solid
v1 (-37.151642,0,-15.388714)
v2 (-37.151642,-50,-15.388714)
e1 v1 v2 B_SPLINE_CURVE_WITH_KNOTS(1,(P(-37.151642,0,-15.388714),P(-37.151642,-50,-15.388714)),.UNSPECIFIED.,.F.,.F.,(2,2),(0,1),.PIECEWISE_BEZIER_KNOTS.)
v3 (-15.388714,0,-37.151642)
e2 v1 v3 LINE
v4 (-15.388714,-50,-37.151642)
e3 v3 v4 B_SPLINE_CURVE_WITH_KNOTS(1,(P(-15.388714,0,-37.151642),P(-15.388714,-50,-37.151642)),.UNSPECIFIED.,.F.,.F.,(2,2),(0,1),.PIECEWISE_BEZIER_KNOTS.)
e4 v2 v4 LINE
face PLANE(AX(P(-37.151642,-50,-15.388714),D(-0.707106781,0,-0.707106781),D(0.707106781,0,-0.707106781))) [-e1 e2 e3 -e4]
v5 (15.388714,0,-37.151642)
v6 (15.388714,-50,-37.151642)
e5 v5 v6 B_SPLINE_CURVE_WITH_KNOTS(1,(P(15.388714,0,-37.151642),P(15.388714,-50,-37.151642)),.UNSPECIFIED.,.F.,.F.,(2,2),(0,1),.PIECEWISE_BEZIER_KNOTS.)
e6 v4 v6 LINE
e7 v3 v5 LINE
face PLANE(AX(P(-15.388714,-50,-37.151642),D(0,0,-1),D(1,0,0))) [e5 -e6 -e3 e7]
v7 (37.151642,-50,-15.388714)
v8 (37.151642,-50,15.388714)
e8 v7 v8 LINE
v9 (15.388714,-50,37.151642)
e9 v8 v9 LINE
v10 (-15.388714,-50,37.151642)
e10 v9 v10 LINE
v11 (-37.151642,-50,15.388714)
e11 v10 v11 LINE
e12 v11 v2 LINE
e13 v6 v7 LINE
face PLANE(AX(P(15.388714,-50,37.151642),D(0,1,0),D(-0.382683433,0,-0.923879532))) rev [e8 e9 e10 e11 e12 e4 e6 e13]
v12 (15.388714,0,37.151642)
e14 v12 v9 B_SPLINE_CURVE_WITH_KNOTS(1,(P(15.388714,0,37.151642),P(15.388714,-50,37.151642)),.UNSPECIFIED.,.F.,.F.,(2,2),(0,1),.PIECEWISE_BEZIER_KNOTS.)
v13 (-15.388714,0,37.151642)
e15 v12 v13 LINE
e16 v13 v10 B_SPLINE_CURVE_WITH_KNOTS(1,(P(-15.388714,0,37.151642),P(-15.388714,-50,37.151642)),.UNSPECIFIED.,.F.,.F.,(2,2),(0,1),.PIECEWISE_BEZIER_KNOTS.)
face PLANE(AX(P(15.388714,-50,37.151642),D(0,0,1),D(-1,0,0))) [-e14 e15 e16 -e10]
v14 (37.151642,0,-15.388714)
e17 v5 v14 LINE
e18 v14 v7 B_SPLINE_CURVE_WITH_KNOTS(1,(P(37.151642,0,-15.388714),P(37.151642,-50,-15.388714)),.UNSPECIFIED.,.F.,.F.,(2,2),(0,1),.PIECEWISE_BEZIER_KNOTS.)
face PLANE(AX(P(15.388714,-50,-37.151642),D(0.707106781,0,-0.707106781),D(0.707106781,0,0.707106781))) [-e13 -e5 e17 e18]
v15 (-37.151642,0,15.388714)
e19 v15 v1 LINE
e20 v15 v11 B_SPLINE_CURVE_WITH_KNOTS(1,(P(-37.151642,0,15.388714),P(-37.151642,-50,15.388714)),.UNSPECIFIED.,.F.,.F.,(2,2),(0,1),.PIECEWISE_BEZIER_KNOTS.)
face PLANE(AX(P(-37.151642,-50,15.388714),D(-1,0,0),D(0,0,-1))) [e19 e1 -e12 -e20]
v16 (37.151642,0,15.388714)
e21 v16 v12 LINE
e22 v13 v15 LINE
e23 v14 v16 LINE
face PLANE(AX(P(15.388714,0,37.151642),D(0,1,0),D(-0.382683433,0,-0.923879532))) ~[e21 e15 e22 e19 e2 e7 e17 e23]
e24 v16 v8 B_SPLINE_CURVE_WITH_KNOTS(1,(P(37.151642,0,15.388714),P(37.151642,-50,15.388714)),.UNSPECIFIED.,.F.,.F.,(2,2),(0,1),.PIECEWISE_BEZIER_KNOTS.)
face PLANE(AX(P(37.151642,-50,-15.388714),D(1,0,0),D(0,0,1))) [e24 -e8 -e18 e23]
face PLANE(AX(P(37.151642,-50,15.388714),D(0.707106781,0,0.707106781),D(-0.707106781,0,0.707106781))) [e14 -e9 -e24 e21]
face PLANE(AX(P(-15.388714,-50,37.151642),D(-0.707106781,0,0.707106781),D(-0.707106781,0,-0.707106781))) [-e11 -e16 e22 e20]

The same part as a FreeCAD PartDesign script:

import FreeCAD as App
import Part
import Sketcher

V = App.Vector


def add_polygon(sketch, points):
    """Adds a closed chain of lines whose ends are joined by coincident constraints."""
    first, n = sketch.GeometryCount, len(points)
    for a, b in zip(points, points[1:] + points[:1]):
        sketch.addGeometry(Part.LineSegment(App.Vector(*a, 0), App.Vector(*b, 0)), False)
    for i in range(n):
        sketch.addConstraint(Sketcher.Constraint("Coincident", first + i, 2, first + (i + 1) % n, 1))

doc = App.newDocument("Part")
body = doc.addObject("PartDesign::Body", "Body")

sketch1 = body.newObject("Sketcher::SketchObject", "Sketch")
sketch1.AttachmentSupport = (doc.getObject("XZ_Plane"), [""])
sketch1.MapMode = "FlatFace"
add_polygon(sketch1, [(15, 37), (-15, 37), (-37, 15), (-37, -15), (-15, -37), (15, -37), (37, -15), (37, 15)])
sketch1.addConstraint([
    Sketcher.Constraint("Horizontal", 0),
    Sketcher.Constraint("Vertical", 2),
    Sketcher.Constraint("Horizontal", 4),
    Sketcher.Constraint("Vertical", 6),
    Sketcher.Constraint("Symmetric", 0, 2, 4, 2, -1, 1),
    Sketcher.Constraint("Symmetric", 1, 2, 5, 2, -1, 1),
    Sketcher.Constraint("Perpendicular", 1, 3),
    Sketcher.Constraint("Perpendicular", 5, 7),
    Sketcher.Constraint("Horizontal", 2, 2, 5, 2),
    Sketcher.Constraint("Horizontal", 1, 2, 6, 2),
    Sketcher.Constraint("Vertical", 0, 2, 3, 2),
    Sketcher.Constraint("Equal", 4, 2),
    Sketcher.Constraint("DistanceX", 0, 2, 0, 1, 30.777428),
    Sketcher.Constraint("DistanceX", 1, 2, 0, 2, 21.762928),
])

sketch2 = body.newObject("Sketcher::SketchObject", "Sketch001")
sketch2.AttachmentSupport = (doc.getObject("XZ_Plane"), [""])
sketch2.MapMode = "FlatFace"
sketch2.AttachmentOffset = App.Placement(V(0, 0, 50), App.Rotation())
add_polygon(sketch2, [(15, 37), (-15, 37), (-37, 15), (-37, -15), (-15, -37), (15, -37), (37, -15), (37, 15)])
sketch2.addConstraint([
    Sketcher.Constraint("Horizontal", 0),
    Sketcher.Constraint("Vertical", 2),
    Sketcher.Constraint("Horizontal", 4),
    Sketcher.Constraint("Vertical", 6),
    Sketcher.Constraint("Symmetric", 0, 2, 4, 2, -1, 1),
    Sketcher.Constraint("Symmetric", 1, 2, 5, 2, -1, 1),
    Sketcher.Constraint("Perpendicular", 1, 3),
    Sketcher.Constraint("Perpendicular", 5, 7),
    Sketcher.Constraint("Horizontal", 2, 2, 5, 2),
    Sketcher.Constraint("Horizontal", 1, 2, 6, 2),
    Sketcher.Constraint("Vertical", 0, 2, 3, 2),
    Sketcher.Constraint("Equal", 4, 2),
    Sketcher.Constraint("DistanceX", 0, 2, 0, 1, 30.777428),
    Sketcher.Constraint("DistanceX", 1, 2, 0, 2, 21.762928),
])

additiveloft = body.newObject("PartDesign::AdditiveLoft", "AdditiveLoft")
additiveloft.Profile = sketch1
additiveloft.Sections = [sketch2]

doc.recompute()
